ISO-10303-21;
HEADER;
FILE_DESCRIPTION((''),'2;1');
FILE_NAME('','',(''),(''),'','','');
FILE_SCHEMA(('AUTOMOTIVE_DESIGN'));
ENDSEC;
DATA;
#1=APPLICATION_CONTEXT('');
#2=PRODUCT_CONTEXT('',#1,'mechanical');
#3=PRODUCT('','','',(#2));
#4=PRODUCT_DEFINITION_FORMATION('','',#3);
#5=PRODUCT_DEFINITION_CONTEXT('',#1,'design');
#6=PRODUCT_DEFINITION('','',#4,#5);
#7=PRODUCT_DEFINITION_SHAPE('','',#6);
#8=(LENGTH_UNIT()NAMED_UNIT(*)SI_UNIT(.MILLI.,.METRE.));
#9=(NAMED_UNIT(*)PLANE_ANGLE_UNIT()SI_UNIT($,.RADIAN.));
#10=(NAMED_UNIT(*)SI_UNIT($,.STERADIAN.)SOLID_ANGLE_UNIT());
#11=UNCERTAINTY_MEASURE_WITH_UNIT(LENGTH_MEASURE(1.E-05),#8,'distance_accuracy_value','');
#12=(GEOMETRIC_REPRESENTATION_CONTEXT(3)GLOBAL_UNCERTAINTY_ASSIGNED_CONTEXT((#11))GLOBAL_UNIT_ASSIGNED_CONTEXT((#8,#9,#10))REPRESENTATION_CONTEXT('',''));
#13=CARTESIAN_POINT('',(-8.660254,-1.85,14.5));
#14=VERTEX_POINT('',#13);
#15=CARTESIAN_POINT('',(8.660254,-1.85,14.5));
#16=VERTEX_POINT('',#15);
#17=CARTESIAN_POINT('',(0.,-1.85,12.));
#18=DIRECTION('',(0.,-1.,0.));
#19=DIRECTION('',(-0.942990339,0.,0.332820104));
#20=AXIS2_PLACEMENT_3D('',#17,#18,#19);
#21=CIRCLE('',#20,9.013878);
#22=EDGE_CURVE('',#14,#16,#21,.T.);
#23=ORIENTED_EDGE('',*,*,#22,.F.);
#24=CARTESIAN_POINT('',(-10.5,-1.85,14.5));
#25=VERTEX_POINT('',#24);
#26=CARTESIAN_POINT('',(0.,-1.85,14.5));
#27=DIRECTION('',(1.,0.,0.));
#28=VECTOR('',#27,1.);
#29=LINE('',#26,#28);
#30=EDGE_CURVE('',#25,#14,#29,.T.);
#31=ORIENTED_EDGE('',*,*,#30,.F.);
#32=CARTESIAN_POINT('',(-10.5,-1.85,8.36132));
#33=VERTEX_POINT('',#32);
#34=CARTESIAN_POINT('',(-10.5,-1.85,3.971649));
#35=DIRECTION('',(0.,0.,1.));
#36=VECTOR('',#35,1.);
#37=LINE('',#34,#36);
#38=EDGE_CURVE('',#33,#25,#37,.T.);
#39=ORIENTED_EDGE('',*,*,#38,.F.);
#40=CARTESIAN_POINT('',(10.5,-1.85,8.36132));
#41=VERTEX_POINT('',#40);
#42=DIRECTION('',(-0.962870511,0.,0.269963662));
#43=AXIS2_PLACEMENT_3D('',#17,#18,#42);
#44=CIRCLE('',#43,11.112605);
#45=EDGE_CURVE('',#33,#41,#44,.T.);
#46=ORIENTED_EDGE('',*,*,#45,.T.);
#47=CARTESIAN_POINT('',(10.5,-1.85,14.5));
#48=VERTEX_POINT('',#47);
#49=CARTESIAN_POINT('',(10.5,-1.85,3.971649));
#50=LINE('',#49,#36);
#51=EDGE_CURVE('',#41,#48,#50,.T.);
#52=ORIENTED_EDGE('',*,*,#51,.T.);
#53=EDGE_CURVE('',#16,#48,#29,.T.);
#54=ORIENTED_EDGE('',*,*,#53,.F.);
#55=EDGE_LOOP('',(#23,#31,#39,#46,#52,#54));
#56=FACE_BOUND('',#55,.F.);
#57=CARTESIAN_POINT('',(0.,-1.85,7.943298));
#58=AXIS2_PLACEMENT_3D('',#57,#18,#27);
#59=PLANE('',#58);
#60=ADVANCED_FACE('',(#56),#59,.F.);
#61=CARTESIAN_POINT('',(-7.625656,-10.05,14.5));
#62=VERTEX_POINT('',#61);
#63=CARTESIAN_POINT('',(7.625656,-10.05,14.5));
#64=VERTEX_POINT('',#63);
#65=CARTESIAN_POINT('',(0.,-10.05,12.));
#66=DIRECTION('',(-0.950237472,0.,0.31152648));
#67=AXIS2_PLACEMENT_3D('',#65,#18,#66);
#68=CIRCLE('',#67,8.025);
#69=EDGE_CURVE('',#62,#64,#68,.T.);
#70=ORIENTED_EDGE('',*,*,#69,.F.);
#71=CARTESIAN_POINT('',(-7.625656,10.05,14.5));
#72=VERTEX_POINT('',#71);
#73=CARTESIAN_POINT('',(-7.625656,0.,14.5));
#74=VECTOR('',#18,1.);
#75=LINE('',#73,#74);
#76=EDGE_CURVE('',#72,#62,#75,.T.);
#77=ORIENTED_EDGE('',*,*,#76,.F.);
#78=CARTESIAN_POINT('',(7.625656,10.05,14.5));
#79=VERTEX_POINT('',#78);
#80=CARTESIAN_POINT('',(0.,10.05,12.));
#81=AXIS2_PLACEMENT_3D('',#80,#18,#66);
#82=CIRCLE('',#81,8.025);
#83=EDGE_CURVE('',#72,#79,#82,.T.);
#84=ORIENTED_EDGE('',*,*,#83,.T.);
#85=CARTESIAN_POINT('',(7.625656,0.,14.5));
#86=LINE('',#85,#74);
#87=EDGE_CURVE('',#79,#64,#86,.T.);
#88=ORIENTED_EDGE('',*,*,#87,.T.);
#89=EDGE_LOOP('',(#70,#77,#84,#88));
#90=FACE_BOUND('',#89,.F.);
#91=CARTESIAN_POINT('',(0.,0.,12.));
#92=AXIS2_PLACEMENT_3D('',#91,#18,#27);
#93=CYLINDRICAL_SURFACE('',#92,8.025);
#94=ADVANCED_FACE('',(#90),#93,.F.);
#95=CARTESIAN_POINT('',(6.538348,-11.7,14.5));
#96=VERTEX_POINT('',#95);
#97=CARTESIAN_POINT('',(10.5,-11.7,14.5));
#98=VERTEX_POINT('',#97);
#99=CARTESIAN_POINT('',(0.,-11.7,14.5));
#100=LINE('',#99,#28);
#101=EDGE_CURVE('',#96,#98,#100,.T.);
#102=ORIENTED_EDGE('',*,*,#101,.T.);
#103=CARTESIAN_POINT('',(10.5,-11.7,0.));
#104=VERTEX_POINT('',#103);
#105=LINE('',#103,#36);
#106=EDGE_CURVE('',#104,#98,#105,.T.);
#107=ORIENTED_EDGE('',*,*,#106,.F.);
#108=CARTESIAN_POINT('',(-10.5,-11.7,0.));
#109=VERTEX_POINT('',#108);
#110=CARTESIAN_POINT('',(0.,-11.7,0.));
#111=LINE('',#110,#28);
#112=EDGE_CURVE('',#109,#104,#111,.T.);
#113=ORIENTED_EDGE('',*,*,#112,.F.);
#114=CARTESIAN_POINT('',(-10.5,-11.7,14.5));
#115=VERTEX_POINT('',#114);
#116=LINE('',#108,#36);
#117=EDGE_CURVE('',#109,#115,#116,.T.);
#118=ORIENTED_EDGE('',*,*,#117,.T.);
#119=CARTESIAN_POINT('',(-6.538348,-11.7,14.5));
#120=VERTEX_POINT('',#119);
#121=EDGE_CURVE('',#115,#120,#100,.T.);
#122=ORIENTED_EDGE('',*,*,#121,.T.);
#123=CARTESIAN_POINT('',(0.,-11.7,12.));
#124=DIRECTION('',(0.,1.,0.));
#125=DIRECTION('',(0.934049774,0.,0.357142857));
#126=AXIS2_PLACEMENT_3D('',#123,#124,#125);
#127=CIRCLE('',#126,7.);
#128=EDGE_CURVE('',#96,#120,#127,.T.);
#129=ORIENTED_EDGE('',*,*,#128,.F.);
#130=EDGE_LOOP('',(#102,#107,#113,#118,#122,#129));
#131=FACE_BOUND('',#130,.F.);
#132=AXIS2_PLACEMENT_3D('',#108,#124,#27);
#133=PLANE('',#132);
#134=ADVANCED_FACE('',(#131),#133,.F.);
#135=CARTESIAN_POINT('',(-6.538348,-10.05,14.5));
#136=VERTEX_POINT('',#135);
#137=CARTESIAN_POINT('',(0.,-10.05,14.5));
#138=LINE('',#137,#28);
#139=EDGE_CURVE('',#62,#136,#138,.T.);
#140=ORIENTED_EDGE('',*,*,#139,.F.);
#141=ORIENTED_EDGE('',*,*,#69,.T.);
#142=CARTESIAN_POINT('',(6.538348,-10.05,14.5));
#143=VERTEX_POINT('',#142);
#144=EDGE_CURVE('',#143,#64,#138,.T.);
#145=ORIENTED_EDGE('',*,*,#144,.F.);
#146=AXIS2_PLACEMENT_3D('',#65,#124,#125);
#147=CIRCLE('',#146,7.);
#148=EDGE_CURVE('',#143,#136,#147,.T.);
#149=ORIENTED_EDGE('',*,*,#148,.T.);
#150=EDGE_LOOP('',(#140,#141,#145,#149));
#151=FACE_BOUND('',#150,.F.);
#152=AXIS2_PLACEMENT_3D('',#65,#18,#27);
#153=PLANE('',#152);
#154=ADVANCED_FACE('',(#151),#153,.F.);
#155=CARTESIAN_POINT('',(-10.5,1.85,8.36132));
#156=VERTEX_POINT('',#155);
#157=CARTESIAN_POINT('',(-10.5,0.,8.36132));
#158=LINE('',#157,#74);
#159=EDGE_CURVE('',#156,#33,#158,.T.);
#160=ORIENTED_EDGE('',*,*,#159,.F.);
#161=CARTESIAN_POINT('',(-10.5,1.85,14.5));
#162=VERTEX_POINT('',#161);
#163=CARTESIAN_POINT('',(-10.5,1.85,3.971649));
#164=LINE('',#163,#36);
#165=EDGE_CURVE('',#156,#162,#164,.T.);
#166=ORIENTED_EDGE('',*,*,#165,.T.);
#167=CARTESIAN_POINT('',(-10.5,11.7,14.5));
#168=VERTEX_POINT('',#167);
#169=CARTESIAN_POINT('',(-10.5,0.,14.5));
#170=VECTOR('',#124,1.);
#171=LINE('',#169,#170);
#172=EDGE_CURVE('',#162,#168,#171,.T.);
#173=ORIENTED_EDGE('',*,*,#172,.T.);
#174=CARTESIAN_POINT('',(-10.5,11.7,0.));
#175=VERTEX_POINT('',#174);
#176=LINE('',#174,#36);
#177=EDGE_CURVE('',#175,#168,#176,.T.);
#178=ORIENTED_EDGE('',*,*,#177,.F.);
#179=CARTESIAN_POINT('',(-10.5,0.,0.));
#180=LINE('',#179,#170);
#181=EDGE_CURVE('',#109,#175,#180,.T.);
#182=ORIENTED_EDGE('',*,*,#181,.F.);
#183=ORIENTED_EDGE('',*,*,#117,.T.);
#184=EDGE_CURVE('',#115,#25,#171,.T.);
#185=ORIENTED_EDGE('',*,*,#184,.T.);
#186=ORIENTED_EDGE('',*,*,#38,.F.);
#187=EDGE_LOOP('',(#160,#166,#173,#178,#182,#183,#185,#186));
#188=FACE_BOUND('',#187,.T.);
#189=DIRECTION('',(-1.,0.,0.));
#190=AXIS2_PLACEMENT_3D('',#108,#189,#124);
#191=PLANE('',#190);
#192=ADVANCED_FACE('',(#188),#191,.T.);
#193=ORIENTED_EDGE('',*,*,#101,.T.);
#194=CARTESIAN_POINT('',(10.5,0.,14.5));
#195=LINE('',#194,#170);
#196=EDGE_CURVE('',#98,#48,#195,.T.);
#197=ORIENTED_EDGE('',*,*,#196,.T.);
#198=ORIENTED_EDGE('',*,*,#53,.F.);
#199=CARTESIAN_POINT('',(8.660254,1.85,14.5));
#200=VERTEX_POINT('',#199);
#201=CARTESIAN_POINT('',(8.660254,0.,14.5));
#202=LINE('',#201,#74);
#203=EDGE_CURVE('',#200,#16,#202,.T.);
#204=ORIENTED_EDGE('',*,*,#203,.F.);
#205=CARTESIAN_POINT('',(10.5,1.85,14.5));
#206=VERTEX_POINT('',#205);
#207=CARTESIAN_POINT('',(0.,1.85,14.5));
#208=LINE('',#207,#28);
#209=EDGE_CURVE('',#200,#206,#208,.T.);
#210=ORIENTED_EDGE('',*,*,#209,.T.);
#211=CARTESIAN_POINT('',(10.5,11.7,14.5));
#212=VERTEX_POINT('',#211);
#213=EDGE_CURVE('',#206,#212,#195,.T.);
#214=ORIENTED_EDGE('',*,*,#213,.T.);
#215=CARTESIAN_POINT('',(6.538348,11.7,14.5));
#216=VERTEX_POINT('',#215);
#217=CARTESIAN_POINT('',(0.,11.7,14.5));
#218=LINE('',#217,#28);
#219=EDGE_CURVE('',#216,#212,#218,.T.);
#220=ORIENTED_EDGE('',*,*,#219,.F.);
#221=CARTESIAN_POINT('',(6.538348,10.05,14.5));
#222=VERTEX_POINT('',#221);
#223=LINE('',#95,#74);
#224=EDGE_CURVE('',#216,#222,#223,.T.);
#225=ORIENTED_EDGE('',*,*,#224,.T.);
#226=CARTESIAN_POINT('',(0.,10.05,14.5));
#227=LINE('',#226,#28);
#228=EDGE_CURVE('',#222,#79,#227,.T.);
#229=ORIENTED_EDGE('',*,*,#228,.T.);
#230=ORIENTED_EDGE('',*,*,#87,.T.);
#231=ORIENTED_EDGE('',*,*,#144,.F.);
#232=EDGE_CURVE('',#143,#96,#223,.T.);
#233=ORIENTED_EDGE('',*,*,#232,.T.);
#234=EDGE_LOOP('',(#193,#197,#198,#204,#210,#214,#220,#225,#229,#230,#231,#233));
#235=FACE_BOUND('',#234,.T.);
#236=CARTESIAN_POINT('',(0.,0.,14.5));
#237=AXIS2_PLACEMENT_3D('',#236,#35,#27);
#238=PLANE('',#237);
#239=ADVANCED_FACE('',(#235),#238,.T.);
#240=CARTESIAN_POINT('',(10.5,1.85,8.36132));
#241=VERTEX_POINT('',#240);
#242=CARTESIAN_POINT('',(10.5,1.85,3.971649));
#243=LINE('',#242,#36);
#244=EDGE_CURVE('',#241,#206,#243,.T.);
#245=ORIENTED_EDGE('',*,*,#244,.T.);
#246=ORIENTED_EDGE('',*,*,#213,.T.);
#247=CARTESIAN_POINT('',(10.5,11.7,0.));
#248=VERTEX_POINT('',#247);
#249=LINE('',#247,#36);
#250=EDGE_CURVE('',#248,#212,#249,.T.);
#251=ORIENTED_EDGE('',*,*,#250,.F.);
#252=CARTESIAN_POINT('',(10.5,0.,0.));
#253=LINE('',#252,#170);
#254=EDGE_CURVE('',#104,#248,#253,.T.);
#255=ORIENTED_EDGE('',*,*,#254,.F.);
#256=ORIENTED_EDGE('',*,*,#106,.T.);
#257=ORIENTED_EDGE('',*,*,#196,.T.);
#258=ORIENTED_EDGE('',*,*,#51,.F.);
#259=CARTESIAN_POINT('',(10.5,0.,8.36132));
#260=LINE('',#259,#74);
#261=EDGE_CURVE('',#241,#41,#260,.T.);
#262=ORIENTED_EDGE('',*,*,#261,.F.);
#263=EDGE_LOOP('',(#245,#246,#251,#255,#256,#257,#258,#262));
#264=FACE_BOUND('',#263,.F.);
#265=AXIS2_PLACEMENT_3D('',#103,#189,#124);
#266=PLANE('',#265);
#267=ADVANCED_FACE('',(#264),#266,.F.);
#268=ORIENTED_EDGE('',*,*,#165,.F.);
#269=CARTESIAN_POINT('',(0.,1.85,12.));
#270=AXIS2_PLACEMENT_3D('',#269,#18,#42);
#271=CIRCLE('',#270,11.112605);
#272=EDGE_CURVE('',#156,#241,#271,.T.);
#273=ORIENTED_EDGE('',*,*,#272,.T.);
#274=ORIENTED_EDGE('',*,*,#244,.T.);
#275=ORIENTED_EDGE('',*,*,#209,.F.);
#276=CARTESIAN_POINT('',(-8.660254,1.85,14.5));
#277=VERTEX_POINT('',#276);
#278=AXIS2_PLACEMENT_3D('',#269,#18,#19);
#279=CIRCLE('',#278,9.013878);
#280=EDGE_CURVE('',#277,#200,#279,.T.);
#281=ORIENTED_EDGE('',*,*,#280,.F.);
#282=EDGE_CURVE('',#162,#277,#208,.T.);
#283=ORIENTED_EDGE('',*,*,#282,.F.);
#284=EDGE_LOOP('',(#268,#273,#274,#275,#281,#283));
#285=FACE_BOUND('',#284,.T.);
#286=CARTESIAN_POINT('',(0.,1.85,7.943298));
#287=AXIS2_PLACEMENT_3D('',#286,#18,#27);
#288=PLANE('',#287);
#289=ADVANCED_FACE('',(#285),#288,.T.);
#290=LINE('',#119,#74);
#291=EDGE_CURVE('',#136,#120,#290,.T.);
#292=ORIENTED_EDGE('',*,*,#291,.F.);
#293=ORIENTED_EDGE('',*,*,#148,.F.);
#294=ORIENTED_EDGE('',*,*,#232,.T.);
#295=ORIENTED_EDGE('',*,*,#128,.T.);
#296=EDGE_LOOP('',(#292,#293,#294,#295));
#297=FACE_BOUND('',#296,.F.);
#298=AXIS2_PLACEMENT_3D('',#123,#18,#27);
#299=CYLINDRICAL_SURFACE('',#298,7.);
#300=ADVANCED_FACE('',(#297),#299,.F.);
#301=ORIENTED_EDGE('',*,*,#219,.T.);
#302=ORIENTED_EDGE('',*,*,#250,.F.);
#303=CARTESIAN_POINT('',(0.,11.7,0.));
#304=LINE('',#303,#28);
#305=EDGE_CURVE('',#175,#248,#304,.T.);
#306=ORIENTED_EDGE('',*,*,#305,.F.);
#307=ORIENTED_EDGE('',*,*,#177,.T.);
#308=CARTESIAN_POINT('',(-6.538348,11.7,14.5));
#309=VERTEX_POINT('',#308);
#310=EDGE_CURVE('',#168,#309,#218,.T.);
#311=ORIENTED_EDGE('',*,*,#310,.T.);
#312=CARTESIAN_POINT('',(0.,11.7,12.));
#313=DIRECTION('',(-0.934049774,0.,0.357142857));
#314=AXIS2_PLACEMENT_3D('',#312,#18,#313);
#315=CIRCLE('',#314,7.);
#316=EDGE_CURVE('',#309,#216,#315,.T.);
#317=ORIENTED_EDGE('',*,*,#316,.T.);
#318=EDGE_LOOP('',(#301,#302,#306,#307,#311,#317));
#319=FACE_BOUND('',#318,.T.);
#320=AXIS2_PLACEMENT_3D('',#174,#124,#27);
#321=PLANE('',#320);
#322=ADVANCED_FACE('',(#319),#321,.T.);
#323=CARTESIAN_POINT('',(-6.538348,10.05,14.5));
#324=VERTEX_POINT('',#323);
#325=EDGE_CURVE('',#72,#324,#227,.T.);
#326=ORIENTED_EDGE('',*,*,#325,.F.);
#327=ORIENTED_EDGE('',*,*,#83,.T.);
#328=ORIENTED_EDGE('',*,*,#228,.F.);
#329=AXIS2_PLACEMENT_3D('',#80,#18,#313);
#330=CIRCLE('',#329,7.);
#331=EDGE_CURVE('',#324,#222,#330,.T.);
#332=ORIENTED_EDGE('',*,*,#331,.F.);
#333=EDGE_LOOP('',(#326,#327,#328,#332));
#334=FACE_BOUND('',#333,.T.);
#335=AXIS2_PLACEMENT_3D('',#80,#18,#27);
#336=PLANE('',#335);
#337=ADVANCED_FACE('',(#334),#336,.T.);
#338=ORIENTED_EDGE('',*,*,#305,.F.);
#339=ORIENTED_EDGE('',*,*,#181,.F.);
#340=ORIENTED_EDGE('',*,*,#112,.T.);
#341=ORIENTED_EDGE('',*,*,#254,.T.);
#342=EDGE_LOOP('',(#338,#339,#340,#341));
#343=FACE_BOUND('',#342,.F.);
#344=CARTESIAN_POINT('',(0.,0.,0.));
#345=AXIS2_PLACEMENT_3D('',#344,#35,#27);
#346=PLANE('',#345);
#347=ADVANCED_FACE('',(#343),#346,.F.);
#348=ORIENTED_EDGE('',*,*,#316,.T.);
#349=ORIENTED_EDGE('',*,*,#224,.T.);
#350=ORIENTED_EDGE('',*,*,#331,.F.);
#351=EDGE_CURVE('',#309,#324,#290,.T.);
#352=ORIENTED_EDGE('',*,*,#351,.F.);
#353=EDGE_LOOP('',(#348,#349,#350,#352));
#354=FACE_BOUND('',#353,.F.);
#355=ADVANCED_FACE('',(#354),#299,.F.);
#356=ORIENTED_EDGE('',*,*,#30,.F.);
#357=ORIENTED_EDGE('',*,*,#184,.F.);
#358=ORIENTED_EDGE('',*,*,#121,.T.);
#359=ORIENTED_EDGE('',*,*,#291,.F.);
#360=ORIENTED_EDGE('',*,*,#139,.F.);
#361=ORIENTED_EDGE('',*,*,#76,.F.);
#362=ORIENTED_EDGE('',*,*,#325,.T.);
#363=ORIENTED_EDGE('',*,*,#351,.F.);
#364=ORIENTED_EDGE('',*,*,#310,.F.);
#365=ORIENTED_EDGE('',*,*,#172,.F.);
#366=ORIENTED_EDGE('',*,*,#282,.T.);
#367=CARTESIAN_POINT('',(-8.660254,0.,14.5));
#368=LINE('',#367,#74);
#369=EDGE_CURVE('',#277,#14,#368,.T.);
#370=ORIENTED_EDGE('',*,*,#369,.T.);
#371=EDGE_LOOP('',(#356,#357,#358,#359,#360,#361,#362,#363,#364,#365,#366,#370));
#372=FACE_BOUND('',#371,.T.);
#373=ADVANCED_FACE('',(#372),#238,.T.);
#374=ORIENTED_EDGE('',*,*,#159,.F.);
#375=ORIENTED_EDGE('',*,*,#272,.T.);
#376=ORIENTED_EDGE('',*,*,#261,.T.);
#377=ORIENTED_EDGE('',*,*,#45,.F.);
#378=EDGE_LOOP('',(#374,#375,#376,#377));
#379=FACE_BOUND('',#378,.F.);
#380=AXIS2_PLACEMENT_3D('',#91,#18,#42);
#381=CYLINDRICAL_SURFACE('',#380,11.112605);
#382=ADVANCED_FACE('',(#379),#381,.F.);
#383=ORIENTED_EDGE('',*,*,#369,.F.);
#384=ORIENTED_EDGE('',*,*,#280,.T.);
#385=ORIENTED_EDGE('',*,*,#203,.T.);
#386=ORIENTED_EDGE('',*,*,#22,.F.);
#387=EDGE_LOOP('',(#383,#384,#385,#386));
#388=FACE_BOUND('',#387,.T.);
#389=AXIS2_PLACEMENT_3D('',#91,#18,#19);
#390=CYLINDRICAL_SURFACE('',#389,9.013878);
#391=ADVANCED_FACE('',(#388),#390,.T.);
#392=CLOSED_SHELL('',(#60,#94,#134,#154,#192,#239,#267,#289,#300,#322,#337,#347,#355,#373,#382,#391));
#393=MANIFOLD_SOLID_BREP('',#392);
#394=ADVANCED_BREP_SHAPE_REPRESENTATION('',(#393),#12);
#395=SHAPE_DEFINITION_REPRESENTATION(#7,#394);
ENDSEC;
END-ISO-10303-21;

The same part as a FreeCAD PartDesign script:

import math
import FreeCAD as App
import Part
import Sketcher


def add_polygon(sketch, points):
    """Adds a closed chain of lines whose ends are joined by coincident constraints."""
    first, n = sketch.GeometryCount, len(points)
    for a, b in zip(points, points[1:] + points[:1]):
        sketch.addGeometry(Part.LineSegment(App.Vector(*a, 0), App.Vector(*b, 0)), False)
    for i in range(n):
        sketch.addConstraint(Sketcher.Constraint("Coincident", first + i, 2, first + (i + 1) % n, 1))

doc = App.newDocument("Part")
body = doc.addObject("PartDesign::Body", "Body")

# Sketch on XZ plane
sketch1 = body.newObject("Sketcher::SketchObject", "Sketch")
sketch1.AttachmentSupport = (doc.getObject("XZ_Plane"), [""])
sketch1.MapMode = "FlatFace"
sketch1.addGeometry([
    Part.LineSegment(App.Vector(-8.5, 15, 0), App.Vector(-10.7, 15, 0)),
    Part.ArcOfCircle(Part.Circle(App.Vector(0, 12, 0), App.Vector(0, 0, 1), 11.1), math.radians(164), math.radians(376)),
    Part.LineSegment(App.Vector(10.7, 15, 0), App.Vector(8.5, 15, 0)),
    Part.ArcOfCircle(Part.Circle(App.Vector(0, 12, 0), App.Vector(0, 0, 1), 9), math.radians(161), math.radians(379)),
], False)
sketch1.addConstraint([
    Sketcher.Constraint("Coincident", 0, 2, 1, 1),
    Sketcher.Constraint("Coincident", 1, 2, 2, 1),
    Sketcher.Constraint("Coincident", 2, 2, 3, 2),
    Sketcher.Constraint("Coincident", 3, 1, 0, 1),
    Sketcher.Constraint("Horizontal", 0),
    Sketcher.Constraint("Horizontal", 2),
    Sketcher.Constraint("Coincident", 3, 3, 1, 3),
    Sketcher.Constraint("Symmetric", 0, 2, 1, 2, -2),
    Sketcher.Constraint("DistanceX", 0, 2, 0, 1, 2.2),
    Sketcher.Constraint("DistanceY", -1, 1, 1, 3, 12.0),
    Sketcher.Constraint("DistanceY", -1, 1, 0, 2, 15.0),
    Sketcher.Constraint("DistanceX", 3, 1, 2, 2, 17.0),
])
pad1 = body.newObject("PartDesign::Pad", "Pad")
pad1.Profile = sketch1
pad1.Length = 3.7
pad1.Midplane = True
body2 = doc.addObject("PartDesign::Body", "Body001")

# Sketch on XZ plane
sketch2 = body2.newObject("Sketcher::SketchObject", "Sketch001")
sketch2.AttachmentSupport = (doc.getObject("XZ_Plane001"), [""])
sketch2.MapMode = "FlatFace"
sketch2.addGeometry(Part.Circle(App.Vector(0, 12, 0), App.Vector(0, 0, 1), 8), False)
sketch2.addConstraint([
    Sketcher.Constraint("PointOnObject", 0, 3, -2),
    Sketcher.Constraint("Diameter", 0, 16.05),
    Sketcher.Constraint("DistanceY", -1, 1, 0, 3, 12.0),
])
pad2 = body2.newObject("PartDesign::Pad", "Pad001")
pad2.Profile = sketch2
pad2.Length = 20.1
pad2.Midplane = True
body3 = doc.addObject("PartDesign::Body", "Body002")

# Sketch on XY plane
sketch3 = body3.newObject("Sketcher::SketchObject", "Sketch002")
sketch3.AttachmentSupport = (doc.getObject("XY_Plane002"), [""])
sketch3.MapMode = "FlatFace"
add_polygon(sketch3, [(-10, 12), (-10, -12), (10, -12), (10, 12)])  # lines 0-3
sketch3.addConstraint([
    Sketcher.Constraint("Vertical", 0),
    Sketcher.Constraint("Horizontal", 1),
    Sketcher.Constraint("Vertical", 2),
    Sketcher.Constraint("Horizontal", 3),
    Sketcher.Constraint("Symmetric", 0, 2, 2, 2, -1, 1),
    Sketcher.Constraint("DistanceX", 1, 1, 1, 2, 21.0),
    Sketcher.Constraint("DistanceY", 0, 2, 0, 1, 23.4),
])
pad3 = body3.newObject("PartDesign::Pad", "Pad002")
pad3.Profile = sketch3
pad3.Length = 14.5
doc.recompute()

boolean = body3.newObject("PartDesign::Boolean", "Boolean")
boolean.Type = "Cut"
boolean.addObjects([body2])

# Sketch on XZ plane
sketch4 = body3.newObject("Sketcher::SketchObject", "Sketch003")
sketch4.AttachmentSupport = (doc.getObject("XZ_Plane002"), [""])
sketch4.MapMode = "FlatFace"
sketch4.AttachmentOffset = App.Placement(App.Vector(0, 0, 11.7), App.Rotation())
sketch4.addGeometry(Part.Circle(App.Vector(0, 12, 0), App.Vector(0, 0, 1), 7), False)
sketch4.addConstraint([
    Sketcher.Constraint("PointOnObject", 0, 3, -2),
    Sketcher.Constraint("Diameter", 0, 14.0),
    Sketcher.Constraint("DistanceY", -1, 1, 0, 3, 12.0),
])
pocket1 = body3.newObject("PartDesign::Pocket", "Pocket")
pocket1.Profile = sketch4
pocket1.Type = "ThroughAll"
doc.recompute()

boolean2 = body3.newObject("PartDesign::Boolean", "Boolean001")
boolean2.Type = "Cut"
boolean2.addObjects([body])

doc.recompute()
